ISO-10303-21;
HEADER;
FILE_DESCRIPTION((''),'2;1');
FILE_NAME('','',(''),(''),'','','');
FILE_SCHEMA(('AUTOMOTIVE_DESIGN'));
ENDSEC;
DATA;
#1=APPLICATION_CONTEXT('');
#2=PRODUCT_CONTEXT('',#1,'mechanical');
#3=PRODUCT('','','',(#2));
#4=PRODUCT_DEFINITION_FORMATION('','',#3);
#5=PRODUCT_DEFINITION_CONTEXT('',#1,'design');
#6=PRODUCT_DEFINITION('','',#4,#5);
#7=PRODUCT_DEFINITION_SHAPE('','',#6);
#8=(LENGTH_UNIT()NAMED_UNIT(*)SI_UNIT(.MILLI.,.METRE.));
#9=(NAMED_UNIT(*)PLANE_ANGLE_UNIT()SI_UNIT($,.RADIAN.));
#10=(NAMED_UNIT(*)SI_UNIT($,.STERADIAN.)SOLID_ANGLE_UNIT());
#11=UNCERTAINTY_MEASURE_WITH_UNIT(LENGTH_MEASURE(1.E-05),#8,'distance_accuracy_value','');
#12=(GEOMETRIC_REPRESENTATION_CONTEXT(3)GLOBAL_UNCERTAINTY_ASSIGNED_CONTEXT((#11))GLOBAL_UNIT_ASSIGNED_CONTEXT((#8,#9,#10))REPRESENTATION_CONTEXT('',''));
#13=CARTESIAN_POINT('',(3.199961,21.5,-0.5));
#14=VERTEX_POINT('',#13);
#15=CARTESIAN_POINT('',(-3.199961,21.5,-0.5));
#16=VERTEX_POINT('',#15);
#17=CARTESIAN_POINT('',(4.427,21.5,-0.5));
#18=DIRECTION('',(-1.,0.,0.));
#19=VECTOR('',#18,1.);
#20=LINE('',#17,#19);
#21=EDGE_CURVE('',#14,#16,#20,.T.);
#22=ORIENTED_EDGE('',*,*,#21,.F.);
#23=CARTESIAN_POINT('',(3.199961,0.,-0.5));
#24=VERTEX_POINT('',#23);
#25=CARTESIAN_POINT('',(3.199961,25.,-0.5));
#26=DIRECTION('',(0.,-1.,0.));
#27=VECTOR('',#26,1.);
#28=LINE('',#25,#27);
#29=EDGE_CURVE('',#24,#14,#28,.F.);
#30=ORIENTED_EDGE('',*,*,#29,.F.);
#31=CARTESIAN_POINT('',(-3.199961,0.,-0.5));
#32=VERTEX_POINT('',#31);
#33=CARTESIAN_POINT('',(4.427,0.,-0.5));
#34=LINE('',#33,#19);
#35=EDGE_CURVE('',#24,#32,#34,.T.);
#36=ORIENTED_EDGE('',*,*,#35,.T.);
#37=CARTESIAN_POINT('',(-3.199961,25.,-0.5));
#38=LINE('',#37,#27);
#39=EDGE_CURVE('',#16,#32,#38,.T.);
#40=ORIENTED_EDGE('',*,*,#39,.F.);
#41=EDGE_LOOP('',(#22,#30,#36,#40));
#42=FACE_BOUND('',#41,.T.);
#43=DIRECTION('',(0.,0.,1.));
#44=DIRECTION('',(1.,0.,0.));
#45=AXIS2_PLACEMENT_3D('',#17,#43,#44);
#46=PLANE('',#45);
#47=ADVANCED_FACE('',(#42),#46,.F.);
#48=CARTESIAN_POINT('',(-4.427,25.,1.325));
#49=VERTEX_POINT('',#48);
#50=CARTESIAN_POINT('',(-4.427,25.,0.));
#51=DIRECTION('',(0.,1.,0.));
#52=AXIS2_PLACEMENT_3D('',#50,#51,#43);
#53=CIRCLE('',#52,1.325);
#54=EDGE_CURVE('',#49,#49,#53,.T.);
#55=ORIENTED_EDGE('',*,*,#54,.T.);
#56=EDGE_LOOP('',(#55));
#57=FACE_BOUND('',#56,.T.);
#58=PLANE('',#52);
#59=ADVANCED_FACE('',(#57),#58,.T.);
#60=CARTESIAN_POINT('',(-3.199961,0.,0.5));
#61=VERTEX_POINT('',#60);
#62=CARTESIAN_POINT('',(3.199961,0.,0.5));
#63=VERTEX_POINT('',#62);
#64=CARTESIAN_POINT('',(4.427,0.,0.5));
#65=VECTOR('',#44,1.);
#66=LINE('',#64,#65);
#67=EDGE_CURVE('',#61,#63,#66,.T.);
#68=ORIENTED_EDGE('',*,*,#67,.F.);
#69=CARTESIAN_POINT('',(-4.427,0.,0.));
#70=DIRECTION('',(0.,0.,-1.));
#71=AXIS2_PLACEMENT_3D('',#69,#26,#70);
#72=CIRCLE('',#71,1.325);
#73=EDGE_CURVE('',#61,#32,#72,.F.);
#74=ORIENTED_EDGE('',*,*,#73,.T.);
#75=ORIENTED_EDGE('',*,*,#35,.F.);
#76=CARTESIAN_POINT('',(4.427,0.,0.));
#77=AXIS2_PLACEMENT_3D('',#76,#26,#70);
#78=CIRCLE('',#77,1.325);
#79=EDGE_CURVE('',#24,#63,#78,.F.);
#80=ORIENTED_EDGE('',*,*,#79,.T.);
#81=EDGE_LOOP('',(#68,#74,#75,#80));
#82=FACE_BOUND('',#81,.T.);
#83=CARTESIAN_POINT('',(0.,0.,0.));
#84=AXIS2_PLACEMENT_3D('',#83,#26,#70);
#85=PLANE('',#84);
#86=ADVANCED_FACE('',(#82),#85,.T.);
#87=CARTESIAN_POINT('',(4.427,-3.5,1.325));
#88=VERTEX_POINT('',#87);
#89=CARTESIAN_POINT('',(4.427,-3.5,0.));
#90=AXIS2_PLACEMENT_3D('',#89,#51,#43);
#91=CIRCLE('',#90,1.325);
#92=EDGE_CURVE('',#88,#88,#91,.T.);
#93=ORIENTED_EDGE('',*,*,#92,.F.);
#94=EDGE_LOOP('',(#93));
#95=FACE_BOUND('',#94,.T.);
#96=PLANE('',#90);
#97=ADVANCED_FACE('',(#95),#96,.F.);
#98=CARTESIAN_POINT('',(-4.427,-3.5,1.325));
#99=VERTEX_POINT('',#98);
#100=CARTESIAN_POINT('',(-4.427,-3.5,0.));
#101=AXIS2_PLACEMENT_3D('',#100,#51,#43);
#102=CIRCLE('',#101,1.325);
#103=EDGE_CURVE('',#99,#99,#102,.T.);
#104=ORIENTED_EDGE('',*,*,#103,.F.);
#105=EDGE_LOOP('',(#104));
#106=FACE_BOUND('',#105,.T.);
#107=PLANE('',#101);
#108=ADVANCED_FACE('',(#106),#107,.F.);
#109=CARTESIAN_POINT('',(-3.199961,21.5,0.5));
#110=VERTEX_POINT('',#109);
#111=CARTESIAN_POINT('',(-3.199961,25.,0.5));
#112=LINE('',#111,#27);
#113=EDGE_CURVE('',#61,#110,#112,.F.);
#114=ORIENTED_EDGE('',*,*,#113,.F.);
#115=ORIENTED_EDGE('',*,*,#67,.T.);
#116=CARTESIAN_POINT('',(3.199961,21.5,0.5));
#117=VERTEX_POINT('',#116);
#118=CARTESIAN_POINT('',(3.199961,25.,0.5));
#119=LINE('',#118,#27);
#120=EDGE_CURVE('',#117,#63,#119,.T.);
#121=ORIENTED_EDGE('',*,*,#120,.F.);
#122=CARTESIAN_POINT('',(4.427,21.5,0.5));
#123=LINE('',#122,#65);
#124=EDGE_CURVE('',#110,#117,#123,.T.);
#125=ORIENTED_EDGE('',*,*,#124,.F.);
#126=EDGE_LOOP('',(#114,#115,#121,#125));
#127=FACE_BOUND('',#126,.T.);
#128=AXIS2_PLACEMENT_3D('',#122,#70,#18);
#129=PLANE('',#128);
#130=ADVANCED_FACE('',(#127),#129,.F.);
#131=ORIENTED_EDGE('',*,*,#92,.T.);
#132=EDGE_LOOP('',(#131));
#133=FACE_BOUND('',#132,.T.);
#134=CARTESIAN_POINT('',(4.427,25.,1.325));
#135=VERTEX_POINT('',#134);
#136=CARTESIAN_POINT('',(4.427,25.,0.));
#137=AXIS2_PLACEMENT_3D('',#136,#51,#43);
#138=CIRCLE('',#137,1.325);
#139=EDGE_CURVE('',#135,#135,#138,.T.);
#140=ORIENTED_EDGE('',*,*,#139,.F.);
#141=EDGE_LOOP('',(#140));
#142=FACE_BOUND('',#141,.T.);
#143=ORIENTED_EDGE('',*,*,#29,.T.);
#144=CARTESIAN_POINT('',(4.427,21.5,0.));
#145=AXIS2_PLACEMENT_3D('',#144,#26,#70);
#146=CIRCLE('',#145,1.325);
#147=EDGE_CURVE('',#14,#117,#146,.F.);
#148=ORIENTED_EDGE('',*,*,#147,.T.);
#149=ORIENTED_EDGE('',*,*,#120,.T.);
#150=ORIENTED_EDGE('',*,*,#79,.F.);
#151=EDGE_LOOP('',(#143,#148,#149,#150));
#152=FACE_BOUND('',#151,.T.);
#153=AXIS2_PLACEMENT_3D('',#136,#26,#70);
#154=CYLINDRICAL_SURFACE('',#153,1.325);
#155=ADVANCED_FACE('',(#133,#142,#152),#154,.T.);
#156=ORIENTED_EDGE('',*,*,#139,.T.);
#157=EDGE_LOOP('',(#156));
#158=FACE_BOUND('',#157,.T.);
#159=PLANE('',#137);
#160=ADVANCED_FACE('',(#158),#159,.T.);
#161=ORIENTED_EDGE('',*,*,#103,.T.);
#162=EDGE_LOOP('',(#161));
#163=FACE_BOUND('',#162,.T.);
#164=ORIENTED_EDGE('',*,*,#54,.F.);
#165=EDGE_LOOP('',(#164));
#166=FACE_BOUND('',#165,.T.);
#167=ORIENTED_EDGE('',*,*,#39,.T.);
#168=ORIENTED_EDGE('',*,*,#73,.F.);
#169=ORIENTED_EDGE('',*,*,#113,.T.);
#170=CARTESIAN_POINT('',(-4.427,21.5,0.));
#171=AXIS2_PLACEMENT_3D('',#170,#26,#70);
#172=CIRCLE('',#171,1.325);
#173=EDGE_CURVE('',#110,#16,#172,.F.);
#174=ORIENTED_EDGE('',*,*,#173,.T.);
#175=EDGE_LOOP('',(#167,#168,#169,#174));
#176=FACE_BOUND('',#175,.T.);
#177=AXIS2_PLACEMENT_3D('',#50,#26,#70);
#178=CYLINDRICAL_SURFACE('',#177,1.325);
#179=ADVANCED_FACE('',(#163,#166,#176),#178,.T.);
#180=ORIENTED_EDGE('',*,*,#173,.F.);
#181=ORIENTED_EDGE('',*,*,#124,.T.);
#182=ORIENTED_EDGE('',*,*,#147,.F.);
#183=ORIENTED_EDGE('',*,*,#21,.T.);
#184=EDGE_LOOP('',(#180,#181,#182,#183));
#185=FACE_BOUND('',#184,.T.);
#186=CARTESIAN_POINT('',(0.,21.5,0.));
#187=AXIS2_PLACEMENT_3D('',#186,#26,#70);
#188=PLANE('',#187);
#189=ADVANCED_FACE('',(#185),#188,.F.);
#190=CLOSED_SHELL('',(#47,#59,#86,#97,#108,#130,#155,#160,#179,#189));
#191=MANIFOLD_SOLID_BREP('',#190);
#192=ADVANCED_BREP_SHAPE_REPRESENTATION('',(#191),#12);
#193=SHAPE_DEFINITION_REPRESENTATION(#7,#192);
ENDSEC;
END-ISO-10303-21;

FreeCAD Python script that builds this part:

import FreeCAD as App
import Part
import Sketcher
from FreeCAD import Vector
Q = App.Units.Quantity


def add_polygon(sketch, points):
    """Adds a closed chain of lines whose ends are joined by coincident constraints."""
    first, n = sketch.GeometryCount, len(points)
    for a, b in zip(points, points[1:] + points[:1]):
        sketch.addGeometry(Part.LineSegment(App.Vector(*a, 0), App.Vector(*b, 0)), False)
    for i in range(n):
        sketch.addConstraint(Sketcher.Constraint("Coincident", first + i, 2, first + (i + 1) % n, 1))

doc = App.newDocument("Part")
body = doc.addObject("PartDesign::Body", "Body")

# Sketch on XZ plane
sketch1 = doc.addObject("Sketcher::SketchObject", "Sketch")
body.addObject(sketch1)
sketch1.AttachmentSupport = (doc.XZ_Plane, [""])
sketch1.MapMode = "FlatFace"
add_polygon(sketch1, [(-4.4, -0.5), (-4.4, 0.5), (4.4, 0.5), (4.4, -0.5)])  # lines 0-3
sketch1.addConstraint(Sketcher.Constraint("Vertical", 0))
sketch1.addConstraint(Sketcher.Constraint("Horizontal", 1))
sketch1.addConstraint(Sketcher.Constraint("Vertical", 2))
sketch1.addConstraint(Sketcher.Constraint("Horizontal", 3))
sketch1.addConstraint(Sketcher.Constraint("Symmetric", 0, 2, 2, 2, -1, 1))
sketch1.addConstraint(Sketcher.Constraint("DistanceY", 0, 1, 0, 2, Q("1 mm")))
sketch1.addConstraint(Sketcher.Constraint("DistanceX", 1, 1, 1, 2, Q("8.854 mm")))
pad1 = doc.addObject("PartDesign::Pad", "Pad")
body.addObject(pad1)
pad1.Profile = sketch1
pad1.Length = 21.5
pad1.Reversed = True

# Sketch on XZ plane
sketch2 = doc.addObject("Sketcher::SketchObject", "Sketch001")
body.addObject(sketch2)
sketch2.AttachmentSupport = (doc.XZ_Plane, [""])
sketch2.MapMode = "FlatFace"
sketch2.AttachmentOffset = App.Placement(Vector(0, 0, -10.75), App.Rotation())
sketch2.addGeometry(Part.Circle(Vector(-4.4, 0, 0), Vector(0, 0, 1), 1.3), False)
sketch2.addGeometry(Part.Circle(Vector(4.4, 0, 0), Vector(0, 0, 1), 1.3), False)
sketch2.addConstraint(Sketcher.Constraint("Equal", 0, 1))
sketch2.addConstraint(Sketcher.Constraint("Symmetric", 0, 3, 1, 3, -1, 1))
sketch2.addConstraint(Sketcher.Constraint("PointOnObject", 0, 3, -1))
sketch2.addConstraint(Sketcher.Constraint("Diameter", 0, Q("2.65 mm")))
sketch2.addConstraint(Sketcher.Constraint("DistanceX", 0, 3, -1, 1, Q("4.427 mm")))
pad2 = doc.addObject("PartDesign::Pad", "Pad001")
body.addObject(pad2)
pad2.Profile = sketch2
pad2.Length = 28.5
pad2.Midplane = True

doc.recompute()
